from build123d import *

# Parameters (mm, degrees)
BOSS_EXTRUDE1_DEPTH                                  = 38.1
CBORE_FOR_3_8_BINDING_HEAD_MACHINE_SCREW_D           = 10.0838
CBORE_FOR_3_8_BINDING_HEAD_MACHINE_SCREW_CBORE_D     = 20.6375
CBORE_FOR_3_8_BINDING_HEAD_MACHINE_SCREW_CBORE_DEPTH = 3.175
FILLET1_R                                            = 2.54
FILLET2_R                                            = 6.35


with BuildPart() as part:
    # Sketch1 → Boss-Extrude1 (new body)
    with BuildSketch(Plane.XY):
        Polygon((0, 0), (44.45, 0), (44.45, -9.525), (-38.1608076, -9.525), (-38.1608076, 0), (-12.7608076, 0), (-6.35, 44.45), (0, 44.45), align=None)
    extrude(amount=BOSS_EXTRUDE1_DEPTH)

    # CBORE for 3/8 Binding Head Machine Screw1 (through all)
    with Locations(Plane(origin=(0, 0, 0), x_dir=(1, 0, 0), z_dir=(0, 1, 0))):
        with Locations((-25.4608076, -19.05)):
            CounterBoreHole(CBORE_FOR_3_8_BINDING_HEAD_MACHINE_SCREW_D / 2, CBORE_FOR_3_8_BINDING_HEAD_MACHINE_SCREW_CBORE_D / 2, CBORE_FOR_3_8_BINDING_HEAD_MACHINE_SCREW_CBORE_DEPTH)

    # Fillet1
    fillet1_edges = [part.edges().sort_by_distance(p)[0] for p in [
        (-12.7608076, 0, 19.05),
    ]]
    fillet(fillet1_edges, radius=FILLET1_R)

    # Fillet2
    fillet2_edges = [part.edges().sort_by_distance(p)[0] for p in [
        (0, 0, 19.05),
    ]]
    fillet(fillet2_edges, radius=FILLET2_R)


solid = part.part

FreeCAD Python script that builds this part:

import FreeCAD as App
import Part
import Sketcher
Q = App.Units.Quantity


def edges_at(feature, points):
    """Names of the edges that pass closest to the given points."""
    edges = feature.Shape.Edges
    near = lambda p: min(range(len(edges)), key=lambda i: edges[i].distToShape(Part.Vertex(*p))[0])
    return sorted({f"Edge{near(p) + 1}" for p in points})


def add_polygon(sketch, points):
    """Adds a closed chain of lines whose ends are joined by coincident constraints."""
    first, n = sketch.GeometryCount, len(points)
    for a, b in zip(points, points[1:] + points[:1]):
        sketch.addGeometry(Part.LineSegment(App.Vector(*a, 0), App.Vector(*b, 0)), False)
    for i in range(n):
        sketch.addConstraint(Sketcher.Constraint("Coincident", first + i, 2, first + (i + 1) % n, 1))

doc = App.newDocument("Part")
body = doc.addObject("PartDesign::Body", "Body")

sketch1 = body.newObject("Sketcher::SketchObject", "Sketch")
sketch1.AttachmentSupport = (doc.getObject("XY_Plane"), [""])
sketch1.MapMode = "FlatFace"
add_polygon(sketch1, [(44, 0), (0, 0), (0, 44), (-6, 44), (-13, 0), (-38, 0), (-38, -10), (44, -10)])
sketch1.addConstraint([
    Sketcher.Constraint("Horizontal", 0),
    Sketcher.Constraint("Vertical", 1),
    Sketcher.Constraint("Horizontal", 2),
    Sketcher.Constraint("Horizontal", 4),
    Sketcher.Constraint("Vertical", 5),
    Sketcher.Constraint("Horizontal", 6),
    Sketcher.Constraint("Vertical", 7),
    Sketcher.Constraint("Coincident", 0, 2, -1, 1),
    Sketcher.Constraint("PointOnObject", 3, 2, -1),
    Sketcher.Constraint("Equal", 0, 1),
    Sketcher.Constraint("DistanceX", 4, 2, 4, 1, Q("1 in")),
    Sketcher.Constraint("DistanceX", 2, 2, 6, 2, Q("2 in")),
    Sketcher.Constraint("DistanceX", 0, 2, 0, 1, Q("1.75 in")),
    Sketcher.Constraint("DistanceY", 5, 2, 5, 1, Q("0.375 in")),
    Sketcher.Constraint("Distance", 3, 44.90992),
])
pad1 = body.newObject("PartDesign::Pad", "Pad")
pad1.Profile = sketch1
pad1.Length = Q("1.5 in")

sketch2 = body.newObject("Sketcher::SketchObject", "Sketch001")
sketch2.AttachmentSupport = (doc.getObject("XZ_Plane"), [""])
sketch2.MapMode = "FlatFace"
sketch2.addGeometry(Part.Circle(App.Vector(-25, 19, 0), App.Vector(0, 0, 1), 5), False)
sketch2.addConstraint([
    Sketcher.Constraint("Diameter", 0, Q("0.397 in")),
    Sketcher.Constraint("DistanceY", -1, 1, 0, 3, Q("0.75 in")),
    Sketcher.Constraint("DistanceX", 0, 3, -1, 1, 25.460808),
])
doc.recompute()
hole = body.newObject("PartDesign::Hole", "Hole")
hole.Profile = sketch2
hole.ThreadType = "None"
hole.Diameter = Q("0.397 in")
hole.DepthType = "ThroughAll"
hole.HoleCutType = "Counterbore"
hole.HoleCutDiameter = Q("0.8125 in")
hole.HoleCutDepth = Q("0.125 in")
hole.Reversed = True
doc.recompute()

fillet = body.newObject("PartDesign::Fillet", "Fillet")
fillet.Base = (hole, edges_at(hole, [(-12.761, 0, 19.05)]))
fillet.Radius = Q("0.1 in")
doc.recompute()

fillet2 = body.newObject("PartDesign::Fillet", "Fillet001")
fillet2.Base = (fillet, edges_at(fillet, [(0, 0, 19.05)]))
fillet2.Radius = Q("0.25 in")

doc.recompute()
